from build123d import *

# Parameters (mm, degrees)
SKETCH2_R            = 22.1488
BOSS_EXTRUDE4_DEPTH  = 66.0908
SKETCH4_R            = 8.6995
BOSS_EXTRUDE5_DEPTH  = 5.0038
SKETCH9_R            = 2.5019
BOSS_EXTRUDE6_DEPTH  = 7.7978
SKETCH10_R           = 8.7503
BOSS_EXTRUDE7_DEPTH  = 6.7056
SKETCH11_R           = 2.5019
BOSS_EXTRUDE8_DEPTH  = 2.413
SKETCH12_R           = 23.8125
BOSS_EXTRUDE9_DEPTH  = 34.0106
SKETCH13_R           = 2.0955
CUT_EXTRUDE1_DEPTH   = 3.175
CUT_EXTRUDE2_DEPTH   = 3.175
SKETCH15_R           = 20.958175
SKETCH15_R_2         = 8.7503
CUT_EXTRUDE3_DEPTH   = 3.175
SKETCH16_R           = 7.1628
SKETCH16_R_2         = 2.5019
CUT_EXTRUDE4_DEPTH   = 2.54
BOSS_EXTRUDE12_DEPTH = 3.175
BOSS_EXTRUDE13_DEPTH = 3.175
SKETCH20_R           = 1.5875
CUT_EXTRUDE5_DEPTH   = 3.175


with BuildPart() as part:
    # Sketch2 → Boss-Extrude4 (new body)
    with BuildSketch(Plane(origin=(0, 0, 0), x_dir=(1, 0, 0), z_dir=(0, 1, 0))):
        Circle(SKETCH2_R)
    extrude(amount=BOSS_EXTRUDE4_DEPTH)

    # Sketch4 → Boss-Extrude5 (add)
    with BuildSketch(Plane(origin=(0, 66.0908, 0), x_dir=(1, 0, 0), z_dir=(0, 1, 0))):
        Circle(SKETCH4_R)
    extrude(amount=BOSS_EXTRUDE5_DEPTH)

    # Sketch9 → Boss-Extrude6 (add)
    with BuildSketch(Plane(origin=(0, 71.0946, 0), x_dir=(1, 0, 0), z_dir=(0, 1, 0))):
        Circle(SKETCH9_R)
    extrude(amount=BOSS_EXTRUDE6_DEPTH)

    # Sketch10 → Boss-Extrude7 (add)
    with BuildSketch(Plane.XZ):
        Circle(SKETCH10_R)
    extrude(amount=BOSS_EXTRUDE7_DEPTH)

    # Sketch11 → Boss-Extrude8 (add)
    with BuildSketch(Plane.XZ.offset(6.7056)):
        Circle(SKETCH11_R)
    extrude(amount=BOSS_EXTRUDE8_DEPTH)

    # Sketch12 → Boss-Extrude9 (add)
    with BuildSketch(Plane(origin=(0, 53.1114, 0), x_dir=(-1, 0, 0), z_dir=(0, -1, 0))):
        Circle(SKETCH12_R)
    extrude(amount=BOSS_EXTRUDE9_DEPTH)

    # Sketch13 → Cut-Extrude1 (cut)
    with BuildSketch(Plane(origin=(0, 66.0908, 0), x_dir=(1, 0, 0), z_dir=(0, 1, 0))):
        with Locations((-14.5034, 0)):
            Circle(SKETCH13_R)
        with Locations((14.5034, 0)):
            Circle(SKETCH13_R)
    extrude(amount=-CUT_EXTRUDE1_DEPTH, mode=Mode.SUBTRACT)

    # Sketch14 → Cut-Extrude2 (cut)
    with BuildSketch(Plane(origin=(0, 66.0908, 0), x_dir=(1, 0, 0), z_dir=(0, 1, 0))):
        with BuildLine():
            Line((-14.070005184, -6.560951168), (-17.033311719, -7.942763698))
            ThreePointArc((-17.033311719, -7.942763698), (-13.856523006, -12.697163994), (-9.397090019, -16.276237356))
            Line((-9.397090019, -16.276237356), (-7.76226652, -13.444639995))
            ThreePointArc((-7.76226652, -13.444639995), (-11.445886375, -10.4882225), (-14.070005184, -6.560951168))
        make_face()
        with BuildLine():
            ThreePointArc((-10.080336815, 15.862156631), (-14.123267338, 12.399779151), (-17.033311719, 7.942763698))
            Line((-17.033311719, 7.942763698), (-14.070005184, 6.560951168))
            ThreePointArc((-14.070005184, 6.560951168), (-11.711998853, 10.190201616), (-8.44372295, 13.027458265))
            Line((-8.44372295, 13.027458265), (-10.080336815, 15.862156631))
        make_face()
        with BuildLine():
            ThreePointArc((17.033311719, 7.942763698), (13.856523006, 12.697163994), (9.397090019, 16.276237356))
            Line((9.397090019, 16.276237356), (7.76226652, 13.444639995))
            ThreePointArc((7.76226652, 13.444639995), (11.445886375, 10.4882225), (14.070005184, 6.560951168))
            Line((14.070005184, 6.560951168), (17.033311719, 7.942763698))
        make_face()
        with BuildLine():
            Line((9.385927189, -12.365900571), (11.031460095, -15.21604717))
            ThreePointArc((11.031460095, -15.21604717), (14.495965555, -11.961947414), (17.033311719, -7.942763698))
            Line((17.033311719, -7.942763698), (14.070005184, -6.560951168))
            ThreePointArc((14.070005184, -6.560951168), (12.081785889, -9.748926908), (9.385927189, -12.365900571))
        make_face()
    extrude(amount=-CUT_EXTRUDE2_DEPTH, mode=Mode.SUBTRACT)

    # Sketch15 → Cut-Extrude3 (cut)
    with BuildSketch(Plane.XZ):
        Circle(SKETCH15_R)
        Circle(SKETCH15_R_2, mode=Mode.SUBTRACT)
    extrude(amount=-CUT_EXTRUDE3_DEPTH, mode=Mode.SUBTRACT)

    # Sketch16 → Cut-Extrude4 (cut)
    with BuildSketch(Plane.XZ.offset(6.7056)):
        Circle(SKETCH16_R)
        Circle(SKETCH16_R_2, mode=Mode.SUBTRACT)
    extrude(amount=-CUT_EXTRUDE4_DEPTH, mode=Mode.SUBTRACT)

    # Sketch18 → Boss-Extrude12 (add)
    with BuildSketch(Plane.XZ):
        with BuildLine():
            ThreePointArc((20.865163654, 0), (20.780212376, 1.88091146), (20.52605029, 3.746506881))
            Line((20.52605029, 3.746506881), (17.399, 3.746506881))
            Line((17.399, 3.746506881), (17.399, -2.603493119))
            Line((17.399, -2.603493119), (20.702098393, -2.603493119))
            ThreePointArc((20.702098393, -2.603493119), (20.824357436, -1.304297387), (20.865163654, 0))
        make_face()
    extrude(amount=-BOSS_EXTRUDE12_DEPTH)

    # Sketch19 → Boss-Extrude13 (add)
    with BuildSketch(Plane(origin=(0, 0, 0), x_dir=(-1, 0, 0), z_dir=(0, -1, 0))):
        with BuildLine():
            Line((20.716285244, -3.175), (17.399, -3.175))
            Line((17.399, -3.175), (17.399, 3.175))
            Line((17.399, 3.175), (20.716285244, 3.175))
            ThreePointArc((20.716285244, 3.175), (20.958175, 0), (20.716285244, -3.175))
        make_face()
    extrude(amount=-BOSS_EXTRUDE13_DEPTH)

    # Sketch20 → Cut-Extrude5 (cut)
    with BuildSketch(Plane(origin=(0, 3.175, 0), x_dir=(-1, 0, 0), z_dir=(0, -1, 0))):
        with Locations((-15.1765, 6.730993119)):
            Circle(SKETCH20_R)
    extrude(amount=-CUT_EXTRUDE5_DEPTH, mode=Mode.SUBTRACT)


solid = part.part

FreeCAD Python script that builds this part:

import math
import FreeCAD as App
import Part
import Sketcher
from FreeCAD import Vector
Q = App.Units.Quantity

doc = App.newDocument("Part")
params = doc.addObject("Spreadsheet::Sheet", "Params")
for row, (alias, value) in enumerate([
    ("sketch1_diameter", "1.744 in"),
    ("pad1_length", "2.602 in"),
    ("sketch2_diameter", "0.685 in"),
    ("pad2_length", "0.197 in"),
    ("sketch3_diameter", "0.197 in"),
    ("pad3_length", "0.307 in"),
    ("sketch4_diameter", "0.689 in"),
    ("pad4_length", "0.264 in"),
    ("sketch5_diameter", "0.197 in"),
    ("pad5_length", "0.095 in"),
    ("sketch6_diameter", "1.875 in"),
    ("pad6_length", "1.339 in"),
    ("sketch7_diameter", "0.165 in"),
    ("pocket1_length", "0.125 in"),
    ("pocket2_length", "0.125 in"),
    ("sketch9_diameter", "0.689 in"),
    ("pocket3_length", "0.125 in"),
    ("sketch10_diameter", "0.564 in"),
    ("sketch10_diameter2", "0.197 in"),
    ("pocket4_length", "0.1 in"),
    ("sketch11_height", "0.25 in"),
    ("pad7_length", "0.125 in"),
    ("sketch12_height", "0.25 in"),
    ("pad8_length", "0.125 in"),
    ("sketch13_diameter", "0.125 in"),
    ("pocket5_length", "0.125 in"),
], start=1):
    params.set(f"A{row}", alias)
    params.set(f"B{row}", "=" + value)
    params.setAlias(f"B{row}", alias)

body = doc.addObject("PartDesign::Body", "Body")

sketch1 = doc.addObject("Sketcher::SketchObject", "Sketch")
body.addObject(sketch1)
sketch1.AttachmentSupport = (doc.XZ_Plane, [""])
sketch1.MapMode = "FlatFace"
sketch1.addGeometry(Part.Circle(Vector(0, 0, 0), Vector(0, 0, 1), 22), False)
sketch1.addConstraint([
    Sketcher.Constraint("Coincident", 0, 3, -1, 1),
    Sketcher.Constraint("Diameter", 0, Q("1.744 in")),
])
sketch1.setExpression("Constraints[1]", "Params.sketch1_diameter")
pad1 = doc.addObject("PartDesign::Pad", "Pad")
body.addObject(pad1)
pad1.Profile = sketch1
pad1.setExpression("Length", "Params.pad1_length")
pad1.Reversed = True

sketch2 = doc.addObject("Sketcher::SketchObject", "Sketch001")
body.addObject(sketch2)
sketch2.AttachmentSupport = (doc.XZ_Plane, [""])
sketch2.MapMode = "FlatFace"
sketch2.AttachmentOffset = App.Placement(Vector(0, 0, -2.602 * 25.4), App.Rotation())
sketch2.addGeometry(Part.Circle(Vector(0, 0, 0), Vector(0, 0, 1), 9), False)
sketch2.addConstraint([
    Sketcher.Constraint("Coincident", 0, 3, -1, 1),
    Sketcher.Constraint("Diameter", 0, Q("0.685 in")),
])
sketch2.setExpression("Constraints[1]", "Params.sketch2_diameter")
pad2 = doc.addObject("PartDesign::Pad", "Pad001")
body.addObject(pad2)
pad2.Profile = sketch2
pad2.setExpression("Length", "Params.pad2_length")
pad2.Reversed = True

sketch3 = doc.addObject("Sketcher::SketchObject", "Sketch002")
body.addObject(sketch3)
sketch3.AttachmentSupport = (doc.XZ_Plane, [""])
sketch3.MapMode = "FlatFace"
sketch3.AttachmentOffset = App.Placement(Vector(0, 0, -2.799 * 25.4), App.Rotation())
sketch3.addGeometry(Part.Circle(Vector(0, 0, 0), Vector(0, 0, 1), 2.5), False)
sketch3.addConstraint([
    Sketcher.Constraint("Coincident", 0, 3, -1, 1),
    Sketcher.Constraint("Diameter", 0, Q("0.197 in")),
])
sketch3.setExpression("Constraints[1]", "Params.sketch3_diameter")
pad3 = doc.addObject("PartDesign::Pad", "Pad002")
body.addObject(pad3)
pad3.Profile = sketch3
pad3.setExpression("Length", "Params.pad3_length")
pad3.Reversed = True

sketch4 = doc.addObject("Sketcher::SketchObject", "Sketch003")
body.addObject(sketch4)
sketch4.AttachmentSupport = (doc.XZ_Plane, [""])
sketch4.MapMode = "FlatFace"
sketch4.addGeometry(Part.Circle(Vector(0, 0, 0), Vector(0, 0, 1), 9), False)
sketch4.addConstraint([
    Sketcher.Constraint("Coincident", 0, 3, -1, 1),
    Sketcher.Constraint("Diameter", 0, Q("0.689 in")),
])
sketch4.setExpression("Constraints[1]", "Params.sketch4_diameter")
pad4 = doc.addObject("PartDesign::Pad", "Pad003")
body.addObject(pad4)
pad4.Profile = sketch4
pad4.setExpression("Length", "Params.pad4_length")

sketch5 = doc.addObject("Sketcher::SketchObject", "Sketch004")
body.addObject(sketch5)
sketch5.AttachmentSupport = (doc.XZ_Plane, [""])
sketch5.MapMode = "FlatFace"
sketch5.AttachmentOffset = App.Placement(Vector(0, 0, 0.264 * 25.4), App.Rotation())
sketch5.addGeometry(Part.Circle(Vector(0, 0, 0), Vector(0, 0, 1), 2.5), False)
sketch5.addConstraint([
    Sketcher.Constraint("Coincident", 0, 3, -1, 1),
    Sketcher.Constraint("Diameter", 0, Q("0.197 in")),
])
sketch5.setExpression("Constraints[1]", "Params.sketch5_diameter")
pad5 = doc.addObject("PartDesign::Pad", "Pad004")
body.addObject(pad5)
pad5.Profile = sketch5
pad5.setExpression("Length", "Params.pad5_length")

sketch6 = doc.addObject("Sketcher::SketchObject", "Sketch005")
body.addObject(sketch6)
sketch6.AttachmentSupport = (doc.XZ_Plane, [""])
sketch6.MapMode = "FlatFace"
sketch6.AttachmentOffset = App.Placement(Vector(0, 0, -2.091 * 25.4), App.Rotation())
sketch6.addGeometry(Part.Circle(Vector(0, 0, 0), Vector(0, 0, 1), 24), False)
sketch6.addConstraint([
    Sketcher.Constraint("Coincident", 0, 3, -1, 1),
    Sketcher.Constraint("Diameter", 0, Q("1.875 in")),
])
sketch6.setExpression("Constraints[1]", "Params.sketch6_diameter")
pad6 = doc.addObject("PartDesign::Pad", "Pad005")
body.addObject(pad6)
pad6.Profile = sketch6
pad6.setExpression("Length", "Params.pad6_length")

sketch7 = doc.addObject("Sketcher::SketchObject", "Sketch006")
body.addObject(sketch7)
sketch7.AttachmentSupport = (doc.XZ_Plane, [""])
sketch7.MapMode = "FlatFace"
sketch7.AttachmentOffset = App.Placement(Vector(0, 0, -2.602 * 25.4), App.Rotation())
sketch7.addGeometry([
    Part.Circle(Vector(-14.5, 0, 0), Vector(0, 0, 1), 2.1),
    Part.Circle(Vector(14.5, 0, 0), Vector(0, 0, 1), 2.1),
], False)
sketch7.addConstraint([
    Sketcher.Constraint("Equal", 0, 1),
    Sketcher.Constraint("Symmetric", 0, 3, 1, 3, -1, 1),
    Sketcher.Constraint("PointOnObject", 0, 3, -1),
    Sketcher.Constraint("Diameter", 0, Q("0.165 in")),
    Sketcher.Constraint("DistanceX", 0, 3, -1, 1, Q("0.571 in")),
])
sketch7.setExpression("Constraints[3]", "Params.sketch7_diameter")
pocket1 = doc.addObject("PartDesign::Pocket", "Pocket")
body.addObject(pocket1)
pocket1.Profile = sketch7
pocket1.setExpression("Length", "Params.pocket1_length")
pocket1.Reversed = True

sketch8 = doc.addObject("Sketcher::SketchObject", "Sketch007")
body.addObject(sketch8)
sketch8.AttachmentSupport = (doc.XZ_Plane, [""])
sketch8.MapMode = "FlatFace"
sketch8.AttachmentOffset = App.Placement(Vector(0, 0, -2.602 * 25.4), App.Rotation())
sketch8.addGeometry([
    Part.LineSegment(Vector(-14.1, 6.6, 0), Vector(-17, 7.9, 0)),
    Part.ArcOfCircle(Part.Circle(Vector(0, 0, 0), Vector(0, 0, 1), 18.8), math.radians(120), math.radians(155)),
    Part.LineSegment(Vector(-9.4, 16.3, 0), Vector(-7.8, 13.4, 0)),
    Part.ArcOfCircle(Part.Circle(Vector(0, 0, 0), Vector(0, 0, 1), 15.5), math.radians(120), math.radians(155)),
    Part.ArcOfCircle(Part.Circle(Vector(0, 0, 0), Vector(0, 0, 1), 18.8), math.radians(-155), math.radians(-122)),
    Part.LineSegment(Vector(-17, -7.9, 0), Vector(-14.1, -6.6, 0)),
    Part.ArcOfCircle(Part.Circle(Vector(0, 0, 0), Vector(0, 0, 1), 15.5), math.radians(-155), math.radians(-123)),
    Part.LineSegment(Vector(-8.4, -13, 0), Vector(-10.1, -15.9, 0)),
    Part.ArcOfCircle(Part.Circle(Vector(0, 0, 0), Vector(0, 0, 1), 18.8), math.radians(-60), math.radians(-25)),
    Part.LineSegment(Vector(9.4, -16.3, 0), Vector(7.8, -13.4, 0)),
    Part.ArcOfCircle(Part.Circle(Vector(0, 0, 0), Vector(0, 0, 1), 15.5), math.radians(-60), math.radians(-25)),
    Part.LineSegment(Vector(14.1, -6.6, 0), Vector(17, -7.9, 0)),
    Part.LineSegment(Vector(9.4, 12.4, 0), Vector(11, 15.2, 0)),
    Part.ArcOfCircle(Part.Circle(Vector(0, 0, 0), Vector(0, 0, 1), 18.8), math.radians(25), math.radians(54)),
    Part.LineSegment(Vector(17, 7.9, 0), Vector(14.1, 6.6, 0)),
    Part.ArcOfCircle(Part.Circle(Vector(0, 0, 0), Vector(0, 0, 1), 15.5), math.radians(25), math.radians(53)),
], False)
sketch8.addConstraint([
    Sketcher.Constraint("Coincident", 0, 2, 1, 2),
    Sketcher.Constraint("Coincident", 1, 1, 2, 1),
    Sketcher.Constraint("Coincident", 2, 2, 3, 1),
    Sketcher.Constraint("Coincident", 3, 2, 0, 1),
    Sketcher.Constraint("Coincident", 4, 1, 5, 1),
    Sketcher.Constraint("Coincident", 5, 2, 6, 1),
    Sketcher.Constraint("Coincident", 6, 2, 7, 1),
    Sketcher.Constraint("Coincident", 7, 2, 4, 2),
    Sketcher.Constraint("Coincident", 8, 1, 9, 1),
    Sketcher.Constraint("Coincident", 9, 2, 10, 1),
    Sketcher.Constraint("Coincident", 10, 2, 11, 1),
    Sketcher.Constraint("Coincident", 11, 2, 8, 2),
    Sketcher.Constraint("Coincident", 12, 2, 13, 2),
    Sketcher.Constraint("Coincident", 13, 1, 14, 1),
    Sketcher.Constraint("Coincident", 14, 2, 15, 1),
    Sketcher.Constraint("Coincident", 15, 2, 12, 1),
    Sketcher.Constraint("Coincident", 1, 3, -1, 1),
    Sketcher.Constraint("Coincident", 3, 3, -1, 1),
    Sketcher.Constraint("Coincident", 4, 3, -1, 1),
    Sketcher.Constraint("Coincident", 6, 3, -1, 1),
    Sketcher.Constraint("Coincident", 8, 3, -1, 1),
    Sketcher.Constraint("Coincident", 10, 3, -1, 1),
    Sketcher.Constraint("Coincident", 13, 3, -1, 1),
    Sketcher.Constraint("Coincident", 15, 3, -1, 1),
    Sketcher.Constraint("Equal", 1, 4),
    Sketcher.Constraint("Equal", 3, 6),
    Sketcher.Constraint("Equal", 4, 8),
    Sketcher.Constraint("Equal", 6, 10),
    Sketcher.Constraint("Equal", 8, 13),
    Sketcher.Constraint("Equal", 10, 15),
    Sketcher.Constraint("Parallel", 2, 9),
    Sketcher.Constraint("Parallel", 0, 11),
    Sketcher.Constraint("Parallel", 7, 12),
    Sketcher.Constraint("Parallel", 5, 14),
    Sketcher.Constraint("Horizontal", 5, 2, 10, 2),
    Sketcher.Constraint("Horizontal", 4, 1, 11, 2),
    Sketcher.Constraint("Horizontal", 0, 2, 13, 1),
    Sketcher.Constraint("Vertical", 0, 2, 4, 1),
    Sketcher.Constraint("Angle", 0, Q("155 deg")),
    Sketcher.Constraint("Angle", 2, Q("-60 deg")),
    Sketcher.Constraint("Angle", 7, Q("-120 deg")),
    Sketcher.Constraint("Radius", 1, Q("18.79418 mm")),
    Sketcher.Constraint("Radius", 3, Q("15.524533 mm")),
    Sketcher.Constraint("DistanceY", -1, 1, 15, 2, Q("12.365901 mm")),
    Sketcher.Constraint("DistanceX", 0, 2, -1, 1, Q("17.033312 mm")),
    Sketcher.Constraint("DistanceX", 1, 1, -1, 1, Q("9.39709 mm")),
    Sketcher.Constraint("DistanceY", 6, 2, -1, 1, Q("13.027458 mm")),
    Sketcher.Constraint("DistanceX", -1, 1, 8, 1, Q("9.39709 mm")),
])
pocket2 = doc.addObject("PartDesign::Pocket", "Pocket001")
body.addObject(pocket2)
pocket2.Profile = sketch8
pocket2.setExpression("Length", "Params.pocket2_length")
pocket2.Reversed = True

sketch9 = doc.addObject("Sketcher::SketchObject", "Sketch008")
body.addObject(sketch9)
sketch9.AttachmentSupport = (doc.XZ_Plane, [""])
sketch9.MapMode = "FlatFace"
sketch9.addGeometry([
    Part.Circle(Vector(0, 0, 0), Vector(0, 0, 1), 21),
    Part.Circle(Vector(0, 0, 0), Vector(0, 0, 1), 9),
], False)
sketch9.addConstraint([
    Sketcher.Constraint("Coincident", 0, 3, -1, 1),
    Sketcher.Constraint("Coincident", 1, 3, -1, 1),
    Sketcher.Constraint("Diameter", 1, Q("0.689 in")),
    Sketcher.Constraint("Diameter", 0, Q("41.91635 mm")),
])
sketch9.setExpression("Constraints[2]", "Params.sketch9_diameter")
pocket3 = doc.addObject("PartDesign::Pocket", "Pocket002")
body.addObject(pocket3)
pocket3.Profile = sketch9
pocket3.setExpression("Length", "Params.pocket3_length")

sketch10 = doc.addObject("Sketcher::SketchObject", "Sketch009")
body.addObject(sketch10)
sketch10.AttachmentSupport = (doc.XZ_Plane, [""])
sketch10.MapMode = "FlatFace"
sketch10.AttachmentOffset = App.Placement(Vector(0, 0, 0.264 * 25.4), App.Rotation())
sketch10.addGeometry([
    Part.Circle(Vector(0, 0, 0), Vector(0, 0, 1), 7.2),
    Part.Circle(Vector(0, 0, 0), Vector(0, 0, 1), 2.5),
], False)
sketch10.addConstraint([
    Sketcher.Constraint("Coincident", 0, 3, -1, 1),
    Sketcher.Constraint("Coincident", 1, 3, -1, 1),
    Sketcher.Constraint("Diameter", 0, Q("0.564 in")),
    Sketcher.Constraint("Diameter", 1, Q("0.197 in")),
])
sketch10.setExpression("Constraints[2]", "Params.sketch10_diameter")
sketch10.setExpression("Constraints[3]", "Params.sketch10_diameter2")
pocket4 = doc.addObject("PartDesign::Pocket", "Pocket003")
body.addObject(pocket4)
pocket4.Profile = sketch10
pocket4.setExpression("Length", "Params.pocket4_length")

sketch11 = doc.addObject("Sketcher::SketchObject", "Sketch010")
body.addObject(sketch11)
sketch11.AttachmentSupport = (doc.XZ_Plane, [""])
sketch11.MapMode = "FlatFace"
sketch11.addGeometry([
    Part.ArcOfCircle(Part.Circle(Vector(0, 0, 0), Vector(0, 0, 1), 20.9), math.radians(0), math.radians(10.34)),
    Part.LineSegment(Vector(20.5, 3.7, 0), Vector(17.4, 3.7, 0)),
    Part.LineSegment(Vector(17.4, 3.7, 0), Vector(17.4, -2.6, 0)),
    Part.LineSegment(Vector(17.4, -2.6, 0), Vector(20.7, -2.6, 0)),
    Part.ArcOfCircle(Part.Circle(Vector(0, 0, 0), Vector(0, 0, 1), 20.9), math.radians(-7.17), math.radians(0)),
], False)
sketch11.addConstraint([
    Sketcher.Constraint("Coincident", 0, 2, 1, 1),
    Sketcher.Constraint("Coincident", 1, 2, 2, 1),
    Sketcher.Constraint("Coincident", 2, 2, 3, 1),
    Sketcher.Constraint("Coincident", 3, 2, 4, 1),
    Sketcher.Constraint("Tangent", 4, 2, 0, 1),
    Sketcher.Constraint("Horizontal", 1),
    Sketcher.Constraint("Vertical", 2),
    Sketcher.Constraint("Horizontal", 3),
    Sketcher.Constraint("Coincident", 0, 3, -1, 1),
    Sketcher.Constraint("Equal", 0, 4),
    Sketcher.Constraint("PointOnObject", 4, 2, -1),
    Sketcher.Constraint("DistanceY", 2, 2, 2, 1, Q("0.25 in")),
    Sketcher.Constraint("DistanceX", -1, 1, 1, 2, Q("0.685 in")),
    Sketcher.Constraint("DistanceX", 3, 1, 3, 2, Q("3.303098 mm")),
    Sketcher.Constraint("Radius", 0, Q("20.865164 mm")),
])
sketch11.setExpression("Constraints[11]", "Params.sketch11_height")
pad7 = doc.addObject("PartDesign::Pad", "Pad006")
body.addObject(pad7)
pad7.Profile = sketch11
pad7.setExpression("Length", "Params.pad7_length")
pad7.Reversed = True

sketch12 = doc.addObject("Sketcher::SketchObject", "Sketch011")
body.addObject(sketch12)
sketch12.AttachmentSupport = (doc.XZ_Plane, [""])
sketch12.MapMode = "FlatFace"
sketch12.addGeometry([
    Part.LineSegment(Vector(-17.4, 3.2, 0), Vector(-20.7, 3.2, 0)),
    Part.ArcOfCircle(Part.Circle(Vector(0, 0, 0), Vector(0, 0, 1), 21), math.radians(171.29), math.radians(188.71)),
    Part.LineSegment(Vector(-20.7, -3.2, 0), Vector(-17.4, -3.2, 0)),
    Part.LineSegment(Vector(-17.4, -3.2, 0), Vector(-17.4, 3.2, 0)),
], False)
sketch12.addConstraint([
    Sketcher.Constraint("Coincident", 0, 2, 1, 1),
    Sketcher.Constraint("Coincident", 1, 2, 2, 1),
    Sketcher.Constraint("Coincident", 2, 2, 3, 1),
    Sketcher.Constraint("Coincident", 3, 2, 0, 1),
    Sketcher.Constraint("Horizontal", 0),
    Sketcher.Constraint("Horizontal", 2),
    Sketcher.Constraint("Vertical", 3),
    Sketcher.Constraint("Coincident", 1, 3, -1, 1),
    Sketcher.Constraint("Vertical", 0, 2, 1, 2),
    Sketcher.Constraint("DistanceY", 3, 1, 3, 2, Q("0.25 in")),
    Sketcher.Constraint("DistanceX", 2, 2, -1, 1, Q("0.685 in")),
    Sketcher.Constraint("Radius", 1, Q("20.958175 mm")),
])
sketch12.setExpression("Constraints[9]", "Params.sketch12_height")
pad8 = doc.addObject("PartDesign::Pad", "Pad007")
body.addObject(pad8)
pad8.Profile = sketch12
pad8.setExpression("Length", "Params.pad8_length")
pad8.Reversed = True

sketch13 = doc.addObject("Sketcher::SketchObject", "Sketch012")
body.addObject(sketch13)
sketch13.AttachmentSupport = (doc.XZ_Plane, [""])
sketch13.MapMode = "FlatFace"
sketch13.AttachmentOffset = App.Placement(Vector(0, 0, -0.125 * 25.4), App.Rotation())
sketch13.addGeometry(Part.Circle(Vector(15.2, -6.7, 0), Vector(0, 0, 1), 1.6), False)
sketch13.addConstraint([
    Sketcher.Constraint("Diameter", 0, Q("0.125 in")),
    Sketcher.Constraint("DistanceX", -1, 1, 0, 3, Q("0.5975 in")),
    Sketcher.Constraint("DistanceY", 0, 3, -1, 1, Q("6.730993 mm")),
])
sketch13.setExpression("Constraints[0]", "Params.sketch13_diameter")
pocket5 = doc.addObject("PartDesign::Pocket", "Pocket004")
body.addObject(pocket5)
pocket5.Profile = sketch13
pocket5.setExpression("Length", "Params.pocket5_length")

doc.recompute()
